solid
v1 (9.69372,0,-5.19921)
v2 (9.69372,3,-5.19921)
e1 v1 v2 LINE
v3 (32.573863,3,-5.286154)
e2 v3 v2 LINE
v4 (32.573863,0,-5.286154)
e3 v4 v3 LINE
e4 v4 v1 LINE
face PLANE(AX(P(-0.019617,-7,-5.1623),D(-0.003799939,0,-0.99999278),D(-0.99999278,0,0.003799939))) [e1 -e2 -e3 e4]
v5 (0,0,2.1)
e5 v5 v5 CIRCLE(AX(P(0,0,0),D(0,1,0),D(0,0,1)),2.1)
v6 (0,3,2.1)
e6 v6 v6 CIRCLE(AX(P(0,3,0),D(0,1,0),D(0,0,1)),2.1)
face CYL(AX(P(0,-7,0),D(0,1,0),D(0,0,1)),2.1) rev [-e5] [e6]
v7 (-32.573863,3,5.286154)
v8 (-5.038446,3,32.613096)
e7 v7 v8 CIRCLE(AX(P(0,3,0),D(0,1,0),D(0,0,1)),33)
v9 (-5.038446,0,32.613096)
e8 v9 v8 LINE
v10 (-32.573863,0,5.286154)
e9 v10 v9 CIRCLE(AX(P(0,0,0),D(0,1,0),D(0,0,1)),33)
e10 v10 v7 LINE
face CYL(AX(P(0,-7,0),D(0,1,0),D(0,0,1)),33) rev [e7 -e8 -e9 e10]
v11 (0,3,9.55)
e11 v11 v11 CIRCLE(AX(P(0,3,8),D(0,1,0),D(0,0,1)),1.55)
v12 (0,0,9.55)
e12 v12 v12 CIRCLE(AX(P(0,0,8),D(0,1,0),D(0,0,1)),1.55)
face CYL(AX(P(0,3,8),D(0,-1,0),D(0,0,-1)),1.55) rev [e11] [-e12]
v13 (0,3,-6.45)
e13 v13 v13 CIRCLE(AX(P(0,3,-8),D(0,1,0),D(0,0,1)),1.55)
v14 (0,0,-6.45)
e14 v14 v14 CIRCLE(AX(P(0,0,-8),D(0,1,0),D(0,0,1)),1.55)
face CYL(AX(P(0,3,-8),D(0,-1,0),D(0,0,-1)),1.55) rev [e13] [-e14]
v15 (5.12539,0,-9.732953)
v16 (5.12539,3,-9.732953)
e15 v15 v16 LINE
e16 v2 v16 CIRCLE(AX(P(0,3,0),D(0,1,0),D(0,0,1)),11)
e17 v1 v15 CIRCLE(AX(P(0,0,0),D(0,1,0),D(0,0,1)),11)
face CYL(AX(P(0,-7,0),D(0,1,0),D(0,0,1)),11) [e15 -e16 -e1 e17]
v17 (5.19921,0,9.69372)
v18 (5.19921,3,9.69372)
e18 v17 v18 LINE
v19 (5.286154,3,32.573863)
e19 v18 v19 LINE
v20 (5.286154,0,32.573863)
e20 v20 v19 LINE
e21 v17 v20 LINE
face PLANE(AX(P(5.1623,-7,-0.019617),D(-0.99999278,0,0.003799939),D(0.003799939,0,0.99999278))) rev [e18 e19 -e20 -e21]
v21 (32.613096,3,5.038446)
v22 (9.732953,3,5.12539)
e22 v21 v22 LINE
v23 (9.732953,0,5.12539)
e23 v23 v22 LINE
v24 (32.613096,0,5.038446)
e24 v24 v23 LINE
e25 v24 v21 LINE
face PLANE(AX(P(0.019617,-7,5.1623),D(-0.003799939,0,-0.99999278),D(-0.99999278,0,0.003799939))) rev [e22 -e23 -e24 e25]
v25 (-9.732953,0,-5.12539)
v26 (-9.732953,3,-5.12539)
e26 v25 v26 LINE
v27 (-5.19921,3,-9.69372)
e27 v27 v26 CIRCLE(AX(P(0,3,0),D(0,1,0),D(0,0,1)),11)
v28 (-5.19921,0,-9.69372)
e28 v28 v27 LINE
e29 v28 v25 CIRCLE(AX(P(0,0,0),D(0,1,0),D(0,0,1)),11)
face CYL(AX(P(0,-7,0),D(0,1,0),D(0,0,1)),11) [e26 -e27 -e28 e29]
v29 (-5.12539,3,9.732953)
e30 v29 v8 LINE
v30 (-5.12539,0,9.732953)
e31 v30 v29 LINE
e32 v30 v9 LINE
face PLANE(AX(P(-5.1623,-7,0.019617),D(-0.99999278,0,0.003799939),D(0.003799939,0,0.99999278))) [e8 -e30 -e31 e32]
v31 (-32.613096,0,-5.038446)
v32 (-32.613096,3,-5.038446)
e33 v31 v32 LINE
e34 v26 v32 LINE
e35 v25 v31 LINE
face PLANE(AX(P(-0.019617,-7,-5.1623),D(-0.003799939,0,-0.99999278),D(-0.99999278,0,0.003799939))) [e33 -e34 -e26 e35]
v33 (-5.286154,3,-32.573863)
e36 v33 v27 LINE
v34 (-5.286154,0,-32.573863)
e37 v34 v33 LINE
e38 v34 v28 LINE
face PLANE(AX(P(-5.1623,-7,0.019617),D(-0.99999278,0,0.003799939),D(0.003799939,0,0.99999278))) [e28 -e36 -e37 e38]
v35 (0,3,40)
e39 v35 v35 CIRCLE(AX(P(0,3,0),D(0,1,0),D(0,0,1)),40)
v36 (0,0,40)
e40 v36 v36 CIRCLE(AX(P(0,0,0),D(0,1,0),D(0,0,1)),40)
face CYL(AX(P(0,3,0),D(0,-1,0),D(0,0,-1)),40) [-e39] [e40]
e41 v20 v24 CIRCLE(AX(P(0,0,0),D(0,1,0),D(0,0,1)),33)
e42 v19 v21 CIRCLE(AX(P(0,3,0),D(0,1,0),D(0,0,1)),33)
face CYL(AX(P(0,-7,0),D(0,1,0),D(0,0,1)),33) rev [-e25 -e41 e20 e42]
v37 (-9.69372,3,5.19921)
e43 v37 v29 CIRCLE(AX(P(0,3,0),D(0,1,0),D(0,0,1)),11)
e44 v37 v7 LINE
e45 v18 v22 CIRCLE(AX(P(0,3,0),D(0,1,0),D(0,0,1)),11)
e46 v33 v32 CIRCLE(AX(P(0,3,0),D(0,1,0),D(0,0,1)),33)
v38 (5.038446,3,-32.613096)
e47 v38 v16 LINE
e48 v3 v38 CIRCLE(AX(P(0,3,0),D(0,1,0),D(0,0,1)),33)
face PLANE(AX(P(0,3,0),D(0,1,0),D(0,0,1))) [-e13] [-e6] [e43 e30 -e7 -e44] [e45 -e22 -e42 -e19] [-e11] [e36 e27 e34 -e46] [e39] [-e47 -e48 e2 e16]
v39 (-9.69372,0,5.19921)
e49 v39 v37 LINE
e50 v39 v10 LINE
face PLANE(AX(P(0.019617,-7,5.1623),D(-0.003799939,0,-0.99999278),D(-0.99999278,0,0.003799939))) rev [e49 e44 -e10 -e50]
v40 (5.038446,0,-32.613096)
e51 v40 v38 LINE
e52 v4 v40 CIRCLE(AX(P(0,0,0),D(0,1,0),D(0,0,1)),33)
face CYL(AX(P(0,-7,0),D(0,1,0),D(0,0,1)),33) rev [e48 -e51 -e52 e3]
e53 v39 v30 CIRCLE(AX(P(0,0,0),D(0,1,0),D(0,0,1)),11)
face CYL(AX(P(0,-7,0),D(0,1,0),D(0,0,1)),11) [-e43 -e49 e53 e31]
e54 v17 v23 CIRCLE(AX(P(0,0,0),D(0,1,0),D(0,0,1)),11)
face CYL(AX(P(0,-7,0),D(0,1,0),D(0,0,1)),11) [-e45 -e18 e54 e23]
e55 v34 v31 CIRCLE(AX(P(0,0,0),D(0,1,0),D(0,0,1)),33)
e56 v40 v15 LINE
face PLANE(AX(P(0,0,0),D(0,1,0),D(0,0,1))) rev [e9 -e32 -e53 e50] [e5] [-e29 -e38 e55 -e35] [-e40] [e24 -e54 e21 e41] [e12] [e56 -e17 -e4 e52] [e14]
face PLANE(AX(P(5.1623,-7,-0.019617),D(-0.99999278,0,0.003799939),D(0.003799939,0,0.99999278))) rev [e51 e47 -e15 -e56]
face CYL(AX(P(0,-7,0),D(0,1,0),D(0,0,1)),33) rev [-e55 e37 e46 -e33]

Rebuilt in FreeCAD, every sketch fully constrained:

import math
import FreeCAD as App
import Part
import Sketcher

doc = App.newDocument("Part")
body = doc.addObject("PartDesign::Body", "Body")

sketch1 = body.newObject("Sketcher::SketchObject", "Sketch")
sketch1.AttachmentSupport = (doc.getObject("XZ_Plane"), [""])
sketch1.MapMode = "FlatFace"
sketch1.addGeometry([
    Part.Circle(App.Vector(0, 0, 0), App.Vector(0, 0, 1), 40),
    Part.Circle(App.Vector(0, -8, 0), App.Vector(0, 0, 1), 1.6),
    Part.Circle(App.Vector(0, 8, 0), App.Vector(0, 0, 1), 1.6),
], False)
sketch1.addConstraint([
    Sketcher.Constraint("Coincident", 0, 3, -1, 1),
    Sketcher.Constraint("Equal", 1, 2),
    Sketcher.Constraint("Symmetric", 1, 3, 2, 3, -1, 1),
    Sketcher.Constraint("PointOnObject", 1, 3, -2),
    Sketcher.Constraint("Diameter", 0, 80.0),
    Sketcher.Constraint("Diameter", 1, 3.1),
    Sketcher.Constraint("DistanceY", 1, 3, -1, 1, 8.0),
])
pad1 = body.newObject("PartDesign::Pad", "Pad")
pad1.Profile = sketch1
pad1.Length = 3
pad1.Reversed = True

sketch2 = body.newObject("Sketcher::SketchObject", "Sketch001")
sketch2.AttachmentSupport = (doc.getObject("XZ_Plane"), [""])
sketch2.MapMode = "FlatFace"
sketch2.AttachmentOffset = App.Placement(App.Vector(0, 0, -3), App.Rotation())
sketch2.addGeometry(Part.Circle(App.Vector(0, 0, 0), App.Vector(0, 0, 1), 2.1), False)
sketch2.addConstraint([
    Sketcher.Constraint("Coincident", 0, 3, -1, 1),
    Sketcher.Constraint("Diameter", 0, 4.2),
])
pocket1 = body.newObject("PartDesign::Pocket", "Pocket")
pocket1.Profile = sketch2
pocket1.Length = 10
pocket1.Reversed = True

sketch3 = body.newObject("Sketcher::SketchObject", "Sketch002")
sketch3.AttachmentSupport = (doc.getObject("XZ_Plane"), [""])
sketch3.MapMode = "FlatFace"
sketch3.AttachmentOffset = App.Placement(App.Vector(0, 0, -3), App.Rotation())
sketch3.addGeometry([
    Part.LineSegment(App.Vector(-5, -10, 0), App.Vector(-5, -33, 0)),
    Part.ArcOfCircle(Part.Circle(App.Vector(0, 0, 0), App.Vector(0, 0, 1), 33), math.radians(-171), math.radians(-99)),
    Part.LineSegment(App.Vector(-33, -5, 0), App.Vector(-10, -5, 0)),
    Part.ArcOfCircle(Part.Circle(App.Vector(0, 0, 0), App.Vector(0, 0, 1), 11), math.radians(-152), math.radians(-118)),
    Part.ArcOfCircle(Part.Circle(App.Vector(0, 0, 0), App.Vector(0, 0, 1), 33), math.radians(-81), math.radians(-9)),
    Part.LineSegment(App.Vector(5, -33, 0), App.Vector(5, -10, 0)),
    Part.ArcOfCircle(Part.Circle(App.Vector(0, 0, 0), App.Vector(0, 0, 1), 11), math.radians(-62), math.radians(-28)),
    Part.LineSegment(App.Vector(10, -5, 0), App.Vector(33, -5, 0)),
    Part.ArcOfCircle(Part.Circle(App.Vector(0, 0, 0), App.Vector(0, 0, 1), 33), math.radians(9), math.radians(81)),
    Part.LineSegment(App.Vector(33, 5, 0), App.Vector(10, 5, 0)),
    Part.ArcOfCircle(Part.Circle(App.Vector(0, 0, 0), App.Vector(0, 0, 1), 11), math.radians(28), math.radians(62)),
    Part.LineSegment(App.Vector(5, 10, 0), App.Vector(5, 33, 0)),
    Part.LineSegment(App.Vector(-10, 5, 0), App.Vector(-33, 5, 0)),
    Part.ArcOfCircle(Part.Circle(App.Vector(0, 0, 0), App.Vector(0, 0, 1), 33), math.radians(99), math.radians(171)),
    Part.LineSegment(App.Vector(-5, 33, 0), App.Vector(-5, 10, 0)),
    Part.ArcOfCircle(Part.Circle(App.Vector(0, 0, 0), App.Vector(0, 0, 1), 11), math.radians(118), math.radians(152)),
], False)
sketch3.addConstraint([
    Sketcher.Constraint("Coincident", 0, 2, 1, 2),
    Sketcher.Constraint("Coincident", 1, 1, 2, 1),
    Sketcher.Constraint("Coincident", 2, 2, 3, 1),
    Sketcher.Constraint("Coincident", 3, 2, 0, 1),
    Sketcher.Constraint("Coincident", 4, 1, 5, 1),
    Sketcher.Constraint("Coincident", 5, 2, 6, 1),
    Sketcher.Constraint("Coincident", 6, 2, 7, 1),
    Sketcher.Constraint("Coincident", 7, 2, 4, 2),
    Sketcher.Constraint("Coincident", 8, 1, 9, 1),
    Sketcher.Constraint("Coincident", 9, 2, 10, 1),
    Sketcher.Constraint("Coincident", 10, 2, 11, 1),
    Sketcher.Constraint("Coincident", 11, 2, 8, 2),
    Sketcher.Constraint("Coincident", 12, 2, 13, 2),
    Sketcher.Constraint("Coincident", 13, 1, 14, 1),
    Sketcher.Constraint("Coincident", 14, 2, 15, 1),
    Sketcher.Constraint("Coincident", 15, 2, 12, 1),
    Sketcher.Constraint("Coincident", 1, 3, -1, 1),
    Sketcher.Constraint("Coincident", 3, 3, -1, 1),
    Sketcher.Constraint("Coincident", 4, 3, -1, 1),
    Sketcher.Constraint("Coincident", 6, 3, -1, 1),
    Sketcher.Constraint("Coincident", 8, 3, -1, 1),
    Sketcher.Constraint("Coincident", 10, 3, -1, 1),
    Sketcher.Constraint("Coincident", 13, 3, -1, 1),
    Sketcher.Constraint("Coincident", 15, 3, -1, 1),
    Sketcher.Constraint("Equal", 1, 4),
    Sketcher.Constraint("Equal", 3, 6),
    Sketcher.Constraint("Equal", 4, 8),
    Sketcher.Constraint("Equal", 6, 10),
    Sketcher.Constraint("Equal", 8, 13),
    Sketcher.Constraint("Equal", 10, 15),
    Sketcher.Constraint("Perpendicular", 0, 2),
    Sketcher.Constraint("Perpendicular", 2, 5),
    Sketcher.Constraint("Perpendicular", 5, 7),
    Sketcher.Constraint("Parallel", 7, 9),
    Sketcher.Constraint("Perpendicular", 9, 11),
    Sketcher.Constraint("Perpendicular", 11, 12),
    Sketcher.Constraint("Perpendicular", 12, 14),
    Sketcher.Constraint("Equal", 0, 2),
    Sketcher.Constraint("Equal", 2, 5),
    Sketcher.Constraint("Equal", 5, 7),
    Sketcher.Constraint("Equal", 7, 9),
    Sketcher.Constraint("Equal", 9, 11),
    Sketcher.Constraint("Equal", 11, 12),
    Sketcher.Constraint("Equal", 12, 14),
    Sketcher.Constraint("Radius", 1, 33.0),
    Sketcher.Constraint("Radius", 3, 11.0),
    Sketcher.Constraint("DistanceX", 0, 2, 4, 1, 10.3246),
    Sketcher.Constraint("DistanceX", 2, 2, 4, 1, 14.771399),
])
pocket2 = body.newObject("PartDesign::Pocket", "Pocket001")
pocket2.Profile = sketch3
pocket2.Length = 10
pocket2.Reversed = True

doc.recompute()
